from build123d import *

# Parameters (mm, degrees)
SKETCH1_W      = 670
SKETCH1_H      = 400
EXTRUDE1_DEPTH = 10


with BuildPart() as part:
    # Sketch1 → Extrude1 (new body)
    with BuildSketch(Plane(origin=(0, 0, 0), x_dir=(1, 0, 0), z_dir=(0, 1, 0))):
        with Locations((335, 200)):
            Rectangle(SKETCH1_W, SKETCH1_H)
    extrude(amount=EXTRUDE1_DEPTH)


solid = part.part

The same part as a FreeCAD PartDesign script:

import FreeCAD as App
import Part
import Sketcher
from FreeCAD import Vector


def add_polygon(sketch, points):
    """Adds a closed chain of lines whose ends are joined by coincident constraints."""
    first, n = sketch.GeometryCount, len(points)
    for a, b in zip(points, points[1:] + points[:1]):
        sketch.addGeometry(Part.LineSegment(App.Vector(*a, 0), App.Vector(*b, 0)), False)
    for i in range(n):
        sketch.addConstraint(Sketcher.Constraint("Coincident", first + i, 2, first + (i + 1) % n, 1))

doc = App.newDocument("Part")
params = doc.addObject("Spreadsheet::Sheet", "Params")
for row, (alias, value) in enumerate([
    ("sketch1_width", "670 mm"),
    ("sketch1_height", "400 mm"),
    ("pad1_length", "10 mm"),
], start=1):
    params.set(f"A{row}", alias)
    params.set(f"B{row}", "=" + value)
    params.setAlias(f"B{row}", alias)

body = doc.addObject("PartDesign::Body", "Body")

sketch1 = body.newObject("Sketcher::SketchObject", "Sketch")
sketch1.AttachmentSupport = (doc.getObject("XZ_Plane"), [""])
sketch1.MapMode = "FlatFace"
add_polygon(sketch1, [(0, -400), (0, 0), (670, 0), (670, -400)])
sketch1.addConstraint([
    Sketcher.Constraint("Vertical", 0),
    Sketcher.Constraint("Horizontal", 1),
    Sketcher.Constraint("Vertical", 2),
    Sketcher.Constraint("Horizontal", 3),
    Sketcher.Constraint("Coincident", 0, 2, -1, 1),
    Sketcher.Constraint("DistanceX", 1, 1, 1, 2, 670.0),
    Sketcher.Constraint("DistanceY", 0, 1, 0, 2, 400.0),
])
sketch1.setExpression("Constraints[9]", "Params.sketch1_width")
sketch1.setExpression("Constraints[10]", "Params.sketch1_height")
pad1 = body.newObject("PartDesign::Pad", "Pad")
pad1.Profile = sketch1
pad1.setExpression("Length", "Params.pad1_length")
pad1.Reversed = True

doc.recompute()
